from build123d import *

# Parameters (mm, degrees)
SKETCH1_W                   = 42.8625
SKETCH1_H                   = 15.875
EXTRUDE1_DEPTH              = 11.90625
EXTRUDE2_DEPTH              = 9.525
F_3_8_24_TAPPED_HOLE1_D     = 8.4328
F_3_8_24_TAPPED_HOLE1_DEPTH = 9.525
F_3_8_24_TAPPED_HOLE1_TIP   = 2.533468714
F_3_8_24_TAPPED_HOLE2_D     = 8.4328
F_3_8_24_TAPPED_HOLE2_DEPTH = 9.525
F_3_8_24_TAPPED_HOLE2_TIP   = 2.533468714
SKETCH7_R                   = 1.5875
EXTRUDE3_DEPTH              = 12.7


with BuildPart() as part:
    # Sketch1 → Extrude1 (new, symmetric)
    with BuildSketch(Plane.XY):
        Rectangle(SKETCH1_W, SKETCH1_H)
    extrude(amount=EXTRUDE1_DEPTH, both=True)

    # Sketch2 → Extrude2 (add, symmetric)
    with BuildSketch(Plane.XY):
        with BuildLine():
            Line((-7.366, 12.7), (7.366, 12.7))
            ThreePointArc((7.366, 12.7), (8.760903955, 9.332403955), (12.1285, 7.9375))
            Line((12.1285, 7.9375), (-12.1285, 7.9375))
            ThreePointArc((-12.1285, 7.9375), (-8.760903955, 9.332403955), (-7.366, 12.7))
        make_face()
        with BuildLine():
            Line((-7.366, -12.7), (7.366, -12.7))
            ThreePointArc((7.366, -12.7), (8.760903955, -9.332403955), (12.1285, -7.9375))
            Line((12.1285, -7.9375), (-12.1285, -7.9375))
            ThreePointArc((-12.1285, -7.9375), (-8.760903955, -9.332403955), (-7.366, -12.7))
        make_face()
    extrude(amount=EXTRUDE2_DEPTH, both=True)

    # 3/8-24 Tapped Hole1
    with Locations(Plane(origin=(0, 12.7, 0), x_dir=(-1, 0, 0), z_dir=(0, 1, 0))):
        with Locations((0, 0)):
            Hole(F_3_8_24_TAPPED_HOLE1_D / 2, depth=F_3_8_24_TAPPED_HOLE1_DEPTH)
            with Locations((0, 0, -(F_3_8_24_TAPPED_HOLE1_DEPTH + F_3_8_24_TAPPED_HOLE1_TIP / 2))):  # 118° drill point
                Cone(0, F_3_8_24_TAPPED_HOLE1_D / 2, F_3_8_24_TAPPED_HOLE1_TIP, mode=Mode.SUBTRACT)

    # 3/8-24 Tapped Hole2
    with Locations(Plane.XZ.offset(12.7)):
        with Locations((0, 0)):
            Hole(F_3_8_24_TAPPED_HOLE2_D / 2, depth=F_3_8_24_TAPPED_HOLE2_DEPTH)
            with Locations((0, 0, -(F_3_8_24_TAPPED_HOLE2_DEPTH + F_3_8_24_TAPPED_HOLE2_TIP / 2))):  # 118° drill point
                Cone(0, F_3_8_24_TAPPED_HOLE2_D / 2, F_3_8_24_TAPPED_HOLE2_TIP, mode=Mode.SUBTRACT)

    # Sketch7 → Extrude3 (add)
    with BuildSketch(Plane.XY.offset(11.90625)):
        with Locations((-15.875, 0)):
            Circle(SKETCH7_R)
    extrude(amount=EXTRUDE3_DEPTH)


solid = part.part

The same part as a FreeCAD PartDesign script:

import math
import FreeCAD as App
import Part
import Sketcher

V = App.Vector
Q = App.Units.Quantity

doc = App.newDocument("Part")
body = doc.addObject("PartDesign::Body", "Body")

# Sketch on XY plane
sketch1 = doc.addObject("Sketcher::SketchObject", "Sketch")
body.addObject(sketch1)
sketch1.AttachmentSupport = (doc.XY_Plane, [""])
sketch1.MapMode = "FlatFace"
sketch1.addGeometry(Part.LineSegment(V(-21.43125, 7.9375, 0), V(-21.43125, -7.9375, 0)), False)
sketch1.addGeometry(Part.LineSegment(V(-21.43125, -7.9375, 0), V(21.43125, -7.9375, 0)), False)
sketch1.addGeometry(Part.LineSegment(V(21.43125, -7.9375, 0), V(21.43125, 7.9375, 0)), False)
sketch1.addGeometry(Part.LineSegment(V(21.43125, 7.9375, 0), V(-21.43125, 7.9375, 0)), False)
sketch1.addConstraint(Sketcher.Constraint("Coincident", 0, 2, 1, 1))
sketch1.addConstraint(Sketcher.Constraint("Coincident", 1, 2, 2, 1))
sketch1.addConstraint(Sketcher.Constraint("Coincident", 2, 2, 3, 1))
sketch1.addConstraint(Sketcher.Constraint("Coincident", 3, 2, 0, 1))
sketch1.addConstraint(Sketcher.Constraint("Vertical", 0))
sketch1.addConstraint(Sketcher.Constraint("Horizontal", 1))
sketch1.addConstraint(Sketcher.Constraint("Vertical", 2))
sketch1.addConstraint(Sketcher.Constraint("Horizontal", 3))
sketch1.addConstraint(Sketcher.Constraint("Symmetric", 0, 2, 2, 2, -1, 1))
sketch1.addConstraint(Sketcher.Constraint("DistanceX", 1, 1, 1, 2, Q("1.6875 in")))
sketch1.addConstraint(Sketcher.Constraint("DistanceY", 0, 2, 0, 1, Q("0.625 in")))
pad1 = doc.addObject("PartDesign::Pad", "Pad")
body.addObject(pad1)
pad1.Profile = sketch1
pad1.Length = Q("0.9375 in")
pad1.Midplane = True

# Sketch on XY plane
sketch2 = doc.addObject("Sketcher::SketchObject", "Sketch001")
body.addObject(sketch2)
sketch2.AttachmentSupport = (doc.XY_Plane, [""])
sketch2.MapMode = "FlatFace"
sketch2.addGeometry(Part.LineSegment(V(7.366, 12.7, 0), V(-7.366, 12.7, 0)), False)
sketch2.addGeometry(Part.ArcOfCircle(Part.Circle(V(-12.1285, 12.7, 0), V(0, 0, 1), 4.7625), math.radians(-90), math.radians(0)), False)
sketch2.addGeometry(Part.LineSegment(V(-12.1285, 7.9375, 0), V(12.1285, 7.9375, 0)), False)
sketch2.addGeometry(Part.ArcOfCircle(Part.Circle(V(12.1285, 12.7, 0), V(0, 0, 1), 4.7625), math.radians(-180), math.radians(-90)), False)
sketch2.addGeometry(Part.LineSegment(V(-7.366, -12.7, 0), V(7.366, -12.7, 0)), False)
sketch2.addGeometry(Part.ArcOfCircle(Part.Circle(V(12.1285, -12.7, 0), V(0, 0, 1), 4.7625), math.radians(90), math.radians(180)), False)
sketch2.addGeometry(Part.LineSegment(V(12.1285, -7.9375, 0), V(-12.1285, -7.9375, 0)), False)
sketch2.addGeometry(Part.ArcOfCircle(Part.Circle(V(-12.1285, -12.7, 0), V(0, 0, 1), 4.7625), math.radians(0), math.radians(90)), False)
sketch2.addConstraint(Sketcher.Constraint("Coincident", 0, 2, 1, 2))
sketch2.addConstraint(Sketcher.Constraint("Tangent", 1, 1, 2, 1))
sketch2.addConstraint(Sketcher.Constraint("Tangent", 2, 2, 3, 2))
sketch2.addConstraint(Sketcher.Constraint("Coincident", 3, 1, 0, 1))
sketch2.addConstraint(Sketcher.Constraint("Coincident", 4, 2, 5, 2))
sketch2.addConstraint(Sketcher.Constraint("Tangent", 5, 1, 6, 1))
sketch2.addConstraint(Sketcher.Constraint("Tangent", 6, 2, 7, 2))
sketch2.addConstraint(Sketcher.Constraint("Coincident", 7, 1, 4, 1))
sketch2.addConstraint(Sketcher.Constraint("Horizontal", 0))
sketch2.addConstraint(Sketcher.Constraint("Horizontal", 2))
sketch2.addConstraint(Sketcher.Constraint("Horizontal", 4))
sketch2.addConstraint(Sketcher.Constraint("Horizontal", 6))
sketch2.addConstraint(Sketcher.Constraint("Equal", 1, 3))
sketch2.addConstraint(Sketcher.Constraint("Equal", 3, 5))
sketch2.addConstraint(Sketcher.Constraint("Equal", 5, 7))
sketch2.addConstraint(Sketcher.Constraint("Symmetric", 1, 3, 5, 3, -1, 1))
sketch2.addConstraint(Sketcher.Constraint("Symmetric", 3, 1, 7, 1, -1, 1))
sketch2.addConstraint(Sketcher.Constraint("Horizontal", 3, 3, 0, 2))
sketch2.addConstraint(Sketcher.Constraint("Vertical", 3, 3, 5, 3))
sketch2.addConstraint(Sketcher.Constraint("Radius", 1, Q("0.1875 in")))
sketch2.addConstraint(Sketcher.Constraint("DistanceY", 5, 3, 3, 3, Q("1 in")))
sketch2.addConstraint(Sketcher.Constraint("DistanceX", 0, 2, 0, 1, Q("0.58 in")))
pad2 = doc.addObject("PartDesign::Pad", "Pad001")
body.addObject(pad2)
pad2.Profile = sketch2
pad2.Length = Q("0.75 in")
pad2.Midplane = True

# Sketch on XZ plane
sketch3 = doc.addObject("Sketcher::SketchObject", "Sketch002")
body.addObject(sketch3)
sketch3.AttachmentSupport = (doc.XZ_Plane, [""])
sketch3.MapMode = "FlatFace"
sketch3.AttachmentOffset = App.Placement(V(0, 0, -0.5 * 25.4), App.Rotation())
sketch3.addGeometry(Part.Circle(V(0, 0, 0), V(0, 0, 1), 4.2164), False)
sketch3.addConstraint(Sketcher.Constraint("Coincident", 0, 3, -1, 1))
sketch3.addConstraint(Sketcher.Constraint("Diameter", 0, Q("0.332 in")))
doc.recompute()
hole = doc.addObject("PartDesign::Hole", "Hole")
body.addObject(hole)
hole.Profile = sketch3
hole.ThreadType = "None"
hole.Diameter = Q("0.332 in")
hole.DepthType = "Dimension"
hole.Depth = Q("0.375 in")
hole.DrillPoint = "Angled"
hole.DrillPointAngle = 118
hole.Reversed = True

# Sketch on XZ plane
sketch4 = doc.addObject("Sketcher::SketchObject", "Sketch003")
body.addObject(sketch4)
sketch4.AttachmentSupport = (doc.XZ_Plane, [""])
sketch4.MapMode = "FlatFace"
sketch4.AttachmentOffset = App.Placement(V(0, 0, 0.5 * 25.4), App.Rotation())
sketch4.addGeometry(Part.Circle(V(0, 0, 0), V(0, 0, 1), 4.2164), False)
sketch4.addConstraint(Sketcher.Constraint("Coincident", 0, 3, -1, 1))
sketch4.addConstraint(Sketcher.Constraint("Diameter", 0, Q("0.332 in")))
doc.recompute()
hole2 = doc.addObject("PartDesign::Hole", "Hole001")
body.addObject(hole2)
hole2.Profile = sketch4
hole2.ThreadType = "None"
hole2.Diameter = Q("0.332 in")
hole2.DepthType = "Dimension"
hole2.Depth = Q("0.375 in")
hole2.DrillPoint = "Angled"
hole2.DrillPointAngle = 118

# Sketch on XY plane
sketch5 = doc.addObject("Sketcher::SketchObject", "Sketch004")
body.addObject(sketch5)
sketch5.AttachmentSupport = (doc.XY_Plane, [""])
sketch5.MapMode = "FlatFace"
sketch5.AttachmentOffset = App.Placement(V(0, 0, 0.46875 * 25.4), App.Rotation())
sketch5.addGeometry(Part.Circle(V(-15.875, 0, 0), V(0, 0, 1), 1.5875), False)
sketch5.addConstraint(Sketcher.Constraint("PointOnObject", 0, 3, -1))
sketch5.addConstraint(Sketcher.Constraint("Diameter", 0, Q("0.125 in")))
sketch5.addConstraint(Sketcher.Constraint("DistanceX", 0, 3, -1, 1, Q("0.625 in")))
pad3 = doc.addObject("PartDesign::Pad", "Pad002")
body.addObject(pad3)
pad3.Profile = sketch5
pad3.Length = Q("0.5 in")

doc.recompute()
